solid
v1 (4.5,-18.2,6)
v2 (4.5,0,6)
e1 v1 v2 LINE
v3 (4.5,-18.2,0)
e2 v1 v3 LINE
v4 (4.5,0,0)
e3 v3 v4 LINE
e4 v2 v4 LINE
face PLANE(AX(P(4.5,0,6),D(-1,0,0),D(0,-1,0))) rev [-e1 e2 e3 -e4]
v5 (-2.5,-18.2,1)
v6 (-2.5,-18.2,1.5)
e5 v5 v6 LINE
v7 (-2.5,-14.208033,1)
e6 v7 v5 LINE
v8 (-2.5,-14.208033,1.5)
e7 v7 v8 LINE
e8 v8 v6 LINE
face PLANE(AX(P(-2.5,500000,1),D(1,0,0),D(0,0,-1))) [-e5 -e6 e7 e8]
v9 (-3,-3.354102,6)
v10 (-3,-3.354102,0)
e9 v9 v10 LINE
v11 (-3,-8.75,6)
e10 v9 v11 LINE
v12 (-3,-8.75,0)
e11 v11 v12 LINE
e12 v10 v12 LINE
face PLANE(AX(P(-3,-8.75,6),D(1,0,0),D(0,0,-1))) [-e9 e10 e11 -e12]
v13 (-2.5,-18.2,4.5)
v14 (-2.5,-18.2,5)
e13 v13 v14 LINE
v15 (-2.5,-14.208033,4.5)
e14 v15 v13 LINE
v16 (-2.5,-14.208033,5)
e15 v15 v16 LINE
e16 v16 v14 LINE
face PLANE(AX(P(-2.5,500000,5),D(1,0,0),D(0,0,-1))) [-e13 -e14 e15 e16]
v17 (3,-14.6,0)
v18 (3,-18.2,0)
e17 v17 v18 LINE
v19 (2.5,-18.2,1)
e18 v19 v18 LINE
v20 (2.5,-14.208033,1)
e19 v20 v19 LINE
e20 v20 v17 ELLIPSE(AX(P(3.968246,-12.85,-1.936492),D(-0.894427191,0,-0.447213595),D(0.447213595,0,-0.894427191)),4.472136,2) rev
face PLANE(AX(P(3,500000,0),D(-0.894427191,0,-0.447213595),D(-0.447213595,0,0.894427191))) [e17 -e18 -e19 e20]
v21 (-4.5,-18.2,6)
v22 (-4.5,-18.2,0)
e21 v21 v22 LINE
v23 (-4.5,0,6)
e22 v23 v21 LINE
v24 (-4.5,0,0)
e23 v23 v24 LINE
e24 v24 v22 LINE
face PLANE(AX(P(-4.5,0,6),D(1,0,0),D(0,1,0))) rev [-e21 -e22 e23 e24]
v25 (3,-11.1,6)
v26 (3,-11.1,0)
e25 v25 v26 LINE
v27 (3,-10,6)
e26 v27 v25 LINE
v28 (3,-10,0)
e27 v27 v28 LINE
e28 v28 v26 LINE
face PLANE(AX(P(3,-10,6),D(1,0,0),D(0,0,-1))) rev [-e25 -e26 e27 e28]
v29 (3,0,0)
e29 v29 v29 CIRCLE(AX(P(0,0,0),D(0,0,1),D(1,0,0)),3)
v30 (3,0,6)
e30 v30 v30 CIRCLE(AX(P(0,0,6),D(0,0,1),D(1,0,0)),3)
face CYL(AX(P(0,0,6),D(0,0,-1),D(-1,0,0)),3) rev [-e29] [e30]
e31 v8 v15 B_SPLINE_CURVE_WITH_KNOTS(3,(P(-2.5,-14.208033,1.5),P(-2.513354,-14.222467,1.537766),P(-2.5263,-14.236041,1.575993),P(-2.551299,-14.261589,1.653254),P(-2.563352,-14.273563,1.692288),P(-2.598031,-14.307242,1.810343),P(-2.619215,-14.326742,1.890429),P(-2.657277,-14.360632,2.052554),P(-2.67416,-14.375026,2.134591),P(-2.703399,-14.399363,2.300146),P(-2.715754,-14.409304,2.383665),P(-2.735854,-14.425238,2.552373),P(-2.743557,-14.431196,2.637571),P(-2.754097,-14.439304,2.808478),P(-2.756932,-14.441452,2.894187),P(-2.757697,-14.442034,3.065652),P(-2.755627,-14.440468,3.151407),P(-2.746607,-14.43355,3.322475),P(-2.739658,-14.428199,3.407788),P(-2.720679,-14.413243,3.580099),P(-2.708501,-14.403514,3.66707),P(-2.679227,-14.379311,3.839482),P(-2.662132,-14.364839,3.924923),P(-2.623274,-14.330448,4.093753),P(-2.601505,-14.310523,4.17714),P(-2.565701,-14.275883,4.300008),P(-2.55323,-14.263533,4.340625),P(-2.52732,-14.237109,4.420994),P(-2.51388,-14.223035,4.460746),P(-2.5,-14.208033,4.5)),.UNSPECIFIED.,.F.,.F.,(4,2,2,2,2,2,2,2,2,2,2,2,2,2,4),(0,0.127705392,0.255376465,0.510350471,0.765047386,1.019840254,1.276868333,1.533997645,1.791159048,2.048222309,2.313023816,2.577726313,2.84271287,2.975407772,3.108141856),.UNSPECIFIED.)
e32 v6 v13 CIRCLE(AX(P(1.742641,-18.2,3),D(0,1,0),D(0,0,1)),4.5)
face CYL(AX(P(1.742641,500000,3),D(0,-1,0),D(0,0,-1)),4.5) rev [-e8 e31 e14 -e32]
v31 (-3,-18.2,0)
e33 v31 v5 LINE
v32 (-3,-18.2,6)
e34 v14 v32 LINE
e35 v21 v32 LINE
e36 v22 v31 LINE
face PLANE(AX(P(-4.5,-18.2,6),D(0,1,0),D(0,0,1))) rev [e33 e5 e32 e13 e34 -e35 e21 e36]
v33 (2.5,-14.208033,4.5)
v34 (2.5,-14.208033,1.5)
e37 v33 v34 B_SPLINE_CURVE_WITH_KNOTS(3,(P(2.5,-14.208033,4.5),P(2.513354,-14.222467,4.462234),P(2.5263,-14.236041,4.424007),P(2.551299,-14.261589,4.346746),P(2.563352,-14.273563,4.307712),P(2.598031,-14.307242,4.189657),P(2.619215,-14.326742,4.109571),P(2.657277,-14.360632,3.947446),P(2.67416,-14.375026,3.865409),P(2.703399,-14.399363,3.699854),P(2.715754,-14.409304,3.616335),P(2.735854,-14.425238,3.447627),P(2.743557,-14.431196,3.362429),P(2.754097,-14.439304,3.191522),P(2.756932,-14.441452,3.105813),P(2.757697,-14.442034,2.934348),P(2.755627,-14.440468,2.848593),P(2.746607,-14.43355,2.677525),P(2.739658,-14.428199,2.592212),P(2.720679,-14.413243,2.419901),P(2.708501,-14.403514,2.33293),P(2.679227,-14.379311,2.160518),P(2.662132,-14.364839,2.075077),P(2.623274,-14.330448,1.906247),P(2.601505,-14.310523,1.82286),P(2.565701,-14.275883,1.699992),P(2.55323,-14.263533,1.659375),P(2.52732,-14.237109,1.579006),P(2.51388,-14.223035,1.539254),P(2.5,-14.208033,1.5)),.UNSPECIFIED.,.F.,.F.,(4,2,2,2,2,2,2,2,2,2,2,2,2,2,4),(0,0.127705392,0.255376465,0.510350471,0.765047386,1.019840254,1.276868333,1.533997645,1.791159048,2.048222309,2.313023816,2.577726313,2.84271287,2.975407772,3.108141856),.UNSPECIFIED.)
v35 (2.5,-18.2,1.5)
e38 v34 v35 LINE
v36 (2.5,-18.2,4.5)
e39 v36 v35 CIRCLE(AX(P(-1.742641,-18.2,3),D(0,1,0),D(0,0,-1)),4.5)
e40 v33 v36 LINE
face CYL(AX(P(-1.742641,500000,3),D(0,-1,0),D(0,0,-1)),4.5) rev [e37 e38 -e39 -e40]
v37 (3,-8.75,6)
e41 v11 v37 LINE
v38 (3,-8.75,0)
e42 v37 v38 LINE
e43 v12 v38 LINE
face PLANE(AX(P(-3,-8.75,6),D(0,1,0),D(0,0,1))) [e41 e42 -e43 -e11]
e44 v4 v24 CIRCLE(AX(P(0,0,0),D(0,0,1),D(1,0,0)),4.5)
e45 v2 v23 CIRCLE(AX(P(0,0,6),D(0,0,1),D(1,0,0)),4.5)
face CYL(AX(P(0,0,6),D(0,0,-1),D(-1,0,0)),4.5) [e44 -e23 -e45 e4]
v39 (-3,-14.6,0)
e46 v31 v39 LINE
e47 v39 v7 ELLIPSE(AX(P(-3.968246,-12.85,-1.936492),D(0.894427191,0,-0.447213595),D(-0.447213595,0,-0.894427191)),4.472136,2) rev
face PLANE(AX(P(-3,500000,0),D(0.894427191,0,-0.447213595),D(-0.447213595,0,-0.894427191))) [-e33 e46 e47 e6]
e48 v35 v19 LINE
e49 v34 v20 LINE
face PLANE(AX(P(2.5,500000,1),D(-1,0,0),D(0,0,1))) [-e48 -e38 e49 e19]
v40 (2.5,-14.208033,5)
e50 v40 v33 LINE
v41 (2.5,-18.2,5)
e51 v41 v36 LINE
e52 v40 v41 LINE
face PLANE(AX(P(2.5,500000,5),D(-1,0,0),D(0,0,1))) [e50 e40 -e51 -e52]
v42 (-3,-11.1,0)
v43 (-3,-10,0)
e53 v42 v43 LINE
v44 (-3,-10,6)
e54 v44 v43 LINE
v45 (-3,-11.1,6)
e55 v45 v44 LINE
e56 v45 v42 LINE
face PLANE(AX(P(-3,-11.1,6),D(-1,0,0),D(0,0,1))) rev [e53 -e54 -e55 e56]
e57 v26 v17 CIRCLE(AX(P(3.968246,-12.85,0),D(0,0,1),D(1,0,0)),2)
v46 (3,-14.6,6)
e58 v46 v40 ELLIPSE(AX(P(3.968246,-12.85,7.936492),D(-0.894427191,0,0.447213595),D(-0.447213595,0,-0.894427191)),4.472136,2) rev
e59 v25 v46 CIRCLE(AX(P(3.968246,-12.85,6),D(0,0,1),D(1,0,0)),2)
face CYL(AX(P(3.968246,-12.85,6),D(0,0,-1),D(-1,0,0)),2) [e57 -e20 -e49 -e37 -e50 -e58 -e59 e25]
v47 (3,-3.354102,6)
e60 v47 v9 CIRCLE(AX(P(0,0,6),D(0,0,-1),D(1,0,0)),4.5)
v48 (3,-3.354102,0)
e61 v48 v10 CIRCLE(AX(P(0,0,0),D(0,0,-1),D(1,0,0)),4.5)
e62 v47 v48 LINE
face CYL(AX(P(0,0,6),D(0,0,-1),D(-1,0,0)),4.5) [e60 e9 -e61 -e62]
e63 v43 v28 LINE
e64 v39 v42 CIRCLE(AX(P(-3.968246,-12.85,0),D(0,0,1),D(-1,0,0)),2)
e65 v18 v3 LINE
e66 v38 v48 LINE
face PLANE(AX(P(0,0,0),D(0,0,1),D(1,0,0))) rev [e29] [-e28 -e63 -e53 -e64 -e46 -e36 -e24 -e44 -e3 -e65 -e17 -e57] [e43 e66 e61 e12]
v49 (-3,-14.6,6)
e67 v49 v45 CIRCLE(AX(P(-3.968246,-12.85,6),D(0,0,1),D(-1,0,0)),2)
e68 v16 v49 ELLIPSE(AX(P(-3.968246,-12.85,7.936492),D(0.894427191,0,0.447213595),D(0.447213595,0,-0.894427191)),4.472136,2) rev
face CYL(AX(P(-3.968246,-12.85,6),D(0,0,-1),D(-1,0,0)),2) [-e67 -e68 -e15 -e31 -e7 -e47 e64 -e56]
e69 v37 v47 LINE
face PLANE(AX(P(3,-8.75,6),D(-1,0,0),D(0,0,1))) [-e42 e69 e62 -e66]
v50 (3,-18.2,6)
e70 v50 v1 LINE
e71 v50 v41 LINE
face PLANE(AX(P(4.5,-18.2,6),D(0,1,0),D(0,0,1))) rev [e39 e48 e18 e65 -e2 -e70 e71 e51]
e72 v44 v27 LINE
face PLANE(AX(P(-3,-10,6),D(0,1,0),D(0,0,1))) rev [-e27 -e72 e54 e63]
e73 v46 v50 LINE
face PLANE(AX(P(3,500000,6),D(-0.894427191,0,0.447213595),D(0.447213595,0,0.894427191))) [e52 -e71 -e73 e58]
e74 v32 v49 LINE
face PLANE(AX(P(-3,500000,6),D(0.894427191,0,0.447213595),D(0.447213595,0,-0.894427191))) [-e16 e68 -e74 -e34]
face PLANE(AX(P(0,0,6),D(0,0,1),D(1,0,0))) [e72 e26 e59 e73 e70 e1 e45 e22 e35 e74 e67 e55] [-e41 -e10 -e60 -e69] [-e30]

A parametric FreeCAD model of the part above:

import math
import FreeCAD as App
import Part
import Sketcher

doc = App.newDocument("Part")
params = doc.addObject("Spreadsheet::Sheet", "Params")
for row, (alias, value) in enumerate([
    ("sketch1_radius", "2 mm"),
    ("sketch1_radius2", "4.5 mm"),
    ("sketch1_width", "6 mm"),
    ("sketch1_height", "18.2 mm"),
    ("sketch1_height2", "3.6 mm"),
    ("pad1_length", "6 mm"),
    ("sketch2_diameter", "6 mm"),
    ("sketch2_radius", "4.5 mm"),
    ("sketch2_width", "6 mm"),
    ("sketch3_radius", "4.5 mm"),
    ("sketch3_height", "6 mm"),
    ("sketch3_height2", "0.5 mm"),
    ("sketch4_radius", "4.5 mm"),
    ("sketch4_height", "6 mm"),
    ("sketch4_height2", "0.5 mm"),
], start=1):
    params.set(f"A{row}", alias)
    params.set(f"B{row}", "=" + value)
    params.setAlias(f"B{row}", alias)

body = doc.addObject("PartDesign::Body", "Body")

sketch1 = body.newObject("Sketcher::SketchObject", "Sketch")
sketch1.AttachmentSupport = (doc.getObject("XY_Plane"), [""])
sketch1.MapMode = "FlatFace"
sketch1.addGeometry(Part.LineSegment(App.Vector(-4.5, 0, 0), App.Vector(-4.5, -18.2, 0)), False)
sketch1.addGeometry(Part.LineSegment(App.Vector(-4.5, -18.2, 0), App.Vector(-3, -18.2, 0)), False)
sketch1.addGeometry(Part.LineSegment(App.Vector(-3, -18.2, 0), App.Vector(-3, -14.6, 0)), False)
sketch1.addGeometry(Part.ArcOfCircle(Part.Circle(App.Vector(-4, -12.8, 0), App.Vector(0, 0, 1), 2), math.radians(-61), math.radians(61)), False)
sketch1.addGeometry(Part.LineSegment(App.Vector(-3, -11.1, 0), App.Vector(-3, -10, 0)), False)
sketch1.addGeometry(Part.LineSegment(App.Vector(-3, -10, 0), App.Vector(3, -10, 0)), False)
sketch1.addGeometry(Part.LineSegment(App.Vector(3, -10, 0), App.Vector(3, -11.1, 0)), False)
sketch1.addGeometry(Part.ArcOfCircle(Part.Circle(App.Vector(4, -12.8, 0), App.Vector(0, 0, 1), 2), math.radians(119), math.radians(241)), False)
sketch1.addGeometry(Part.LineSegment(App.Vector(3, -14.6, 0), App.Vector(3, -18.2, 0)), False)
sketch1.addGeometry(Part.LineSegment(App.Vector(3, -18.2, 0), App.Vector(4.5, -18.2, 0)), False)
sketch1.addGeometry(Part.LineSegment(App.Vector(4.5, -18.2, 0), App.Vector(4.5, 0, 0)), False)
sketch1.addGeometry(Part.ArcOfCircle(Part.Circle(App.Vector(0, 0, 0), App.Vector(0, 0, 1), 4.5), math.radians(0), math.radians(180)), False)
sketch1.addConstraint(Sketcher.Constraint("Coincident", 0, 2, 1, 1))
sketch1.addConstraint(Sketcher.Constraint("Coincident", 1, 2, 2, 1))
sketch1.addConstraint(Sketcher.Constraint("Coincident", 2, 2, 3, 1))
sketch1.addConstraint(Sketcher.Constraint("Coincident", 3, 2, 4, 1))
sketch1.addConstraint(Sketcher.Constraint("Coincident", 4, 2, 5, 1))
sketch1.addConstraint(Sketcher.Constraint("Coincident", 5, 2, 6, 1))
sketch1.addConstraint(Sketcher.Constraint("Coincident", 6, 2, 7, 1))
sketch1.addConstraint(Sketcher.Constraint("Coincident", 7, 2, 8, 1))
sketch1.addConstraint(Sketcher.Constraint("Coincident", 8, 2, 9, 1))
sketch1.addConstraint(Sketcher.Constraint("Coincident", 9, 2, 10, 1))
sketch1.addConstraint(Sketcher.Constraint("Tangent", 10, 2, 11, 1))
sketch1.addConstraint(Sketcher.Constraint("Tangent", 11, 2, 0, 1))
sketch1.addConstraint(Sketcher.Constraint("Vertical", 0))
sketch1.addConstraint(Sketcher.Constraint("Horizontal", 1))
sketch1.addConstraint(Sketcher.Constraint("Vertical", 2))
sketch1.addConstraint(Sketcher.Constraint("Vertical", 4))
sketch1.addConstraint(Sketcher.Constraint("Horizontal", 5))
sketch1.addConstraint(Sketcher.Constraint("Vertical", 6))
sketch1.addConstraint(Sketcher.Constraint("Vertical", 8))
sketch1.addConstraint(Sketcher.Constraint("Horizontal", 9))
sketch1.addConstraint(Sketcher.Constraint("Vertical", 10))
sketch1.addConstraint(Sketcher.Constraint("Coincident", 11, 3, -1, 1))
sketch1.addConstraint(Sketcher.Constraint("Equal", 3, 7))
sketch1.addConstraint(Sketcher.Constraint("Symmetric", 3, 3, 7, 3, -2))
sketch1.addConstraint(Sketcher.Constraint("Symmetric", 1, 2, 8, 2, -2))
sketch1.addConstraint(Sketcher.Constraint("Horizontal", 3, 2, 6, 2))
sketch1.addConstraint(Sketcher.Constraint("Vertical", 2, 2, 3, 2))
sketch1.addConstraint(Sketcher.Constraint("Radius", 3, 2.0))
sketch1.addConstraint(Sketcher.Constraint("Radius", 11, 4.5))
sketch1.addConstraint(Sketcher.Constraint("DistanceX", 5, 1, 5, 2, 6.0))
sketch1.addConstraint(Sketcher.Constraint("DistanceY", 0, 2, 0, 1, 18.2))
sketch1.addConstraint(Sketcher.Constraint("DistanceY", 2, 1, 2, 2, 3.6))
sketch1.addConstraint(Sketcher.Constraint("DistanceY", 4, 1, 4, 2, 1.1))
sketch1.addConstraint(Sketcher.Constraint("DistanceY", 4, 2, -1, 1, 10.0))
sketch1.setExpression("Constraints[27]", "Params.sketch1_radius")
sketch1.setExpression("Constraints[28]", "Params.sketch1_radius2")
sketch1.setExpression("Constraints[29]", "Params.sketch1_width")
sketch1.setExpression("Constraints[30]", "Params.sketch1_height")
sketch1.setExpression("Constraints[31]", "Params.sketch1_height2")
pad1 = body.newObject("PartDesign::Pad", "Pad")
pad1.Profile = sketch1
pad1.setExpression("Length", "Params.pad1_length")

sketch2 = body.newObject("Sketcher::SketchObject", "Sketch001")
sketch2.AttachmentSupport = (doc.getObject("XY_Plane"), [""])
sketch2.MapMode = "FlatFace"
sketch2.addGeometry(Part.Circle(App.Vector(0, 0, 0), App.Vector(0, 0, 1), 3), False)
sketch2.addGeometry(Part.LineSegment(App.Vector(-3, -3.4, 0), App.Vector(-3, -8.8, 0)), False)
sketch2.addGeometry(Part.LineSegment(App.Vector(-3, -8.8, 0), App.Vector(3, -8.8, 0)), False)
sketch2.addGeometry(Part.LineSegment(App.Vector(3, -8.8, 0), App.Vector(3, -3.4, 0)), False)
sketch2.addGeometry(Part.ArcOfCircle(Part.Circle(App.Vector(0, 0, 0), App.Vector(0, 0, 1), 4.5), math.radians(-132), math.radians(-48)), False)
sketch2.addConstraint(Sketcher.Constraint("Coincident", 1, 2, 2, 1))
sketch2.addConstraint(Sketcher.Constraint("Coincident", 2, 2, 3, 1))
sketch2.addConstraint(Sketcher.Constraint("Coincident", 3, 2, 4, 2))
sketch2.addConstraint(Sketcher.Constraint("Coincident", 4, 1, 1, 1))
sketch2.addConstraint(Sketcher.Constraint("Vertical", 1))
sketch2.addConstraint(Sketcher.Constraint("Horizontal", 2))
sketch2.addConstraint(Sketcher.Constraint("Vertical", 3))
sketch2.addConstraint(Sketcher.Constraint("Coincident", 0, 3, -1, 1))
sketch2.addConstraint(Sketcher.Constraint("Coincident", 4, 3, -1, 1))
sketch2.addConstraint(Sketcher.Constraint("Horizontal", 3, 2, 4, 1))
sketch2.addConstraint(Sketcher.Constraint("Diameter", 0, 6.0))
sketch2.addConstraint(Sketcher.Constraint("Radius", 4, 4.5))
sketch2.addConstraint(Sketcher.Constraint("DistanceX", 2, 1, 2, 2, 6.0))
sketch2.addConstraint(Sketcher.Constraint("DistanceY", 1, 2, -1, 1, 8.75))
sketch2.setExpression("Constraints[10]", "Params.sketch2_diameter")
sketch2.setExpression("Constraints[11]", "Params.sketch2_radius")
sketch2.setExpression("Constraints[12]", "Params.sketch2_width")
pocket1 = body.newObject("PartDesign::Pocket", "Pocket")
pocket1.Profile = sketch2
pocket1.Type = "ThroughAll"
pocket1.Reversed = True

sketch3 = body.newObject("Sketcher::SketchObject", "Sketch002")
sketch3.AttachmentSupport = (doc.getObject("XZ_Plane"), [""])
sketch3.MapMode = "FlatFace"
sketch3.AttachmentOffset = App.Placement(App.Vector(0, 0, 18.2), App.Rotation())
sketch3.addGeometry(Part.LineSegment(App.Vector(-3, 6, 0), App.Vector(-3, 0, 0)), False)
sketch3.addGeometry(Part.LineSegment(App.Vector(-3, 0, 0), App.Vector(-2.5, 1, 0)), False)
sketch3.addGeometry(Part.LineSegment(App.Vector(-2.5, 1, 0), App.Vector(-2.5, 1.5, 0)), False)
sketch3.addGeometry(Part.ArcOfCircle(Part.Circle(App.Vector(1.7, 3, 0), App.Vector(0, 0, 1), 4.5), math.radians(161), math.radians(199)), False)
sketch3.addGeometry(Part.LineSegment(App.Vector(-2.5, 4.5, 0), App.Vector(-2.5, 5, 0)), False)
sketch3.addGeometry(Part.LineSegment(App.Vector(-2.5, 5, 0), App.Vector(-3, 6, 0)), False)
sketch3.addConstraint(Sketcher.Constraint("Coincident", 0, 2, 1, 1))
sketch3.addConstraint(Sketcher.Constraint("Coincident", 1, 2, 2, 1))
sketch3.addConstraint(Sketcher.Constraint("Coincident", 2, 2, 3, 2))
sketch3.addConstraint(Sketcher.Constraint("Coincident", 3, 1, 4, 1))
sketch3.addConstraint(Sketcher.Constraint("Coincident", 4, 2, 5, 1))
sketch3.addConstraint(Sketcher.Constraint("Coincident", 5, 2, 0, 1))
sketch3.addConstraint(Sketcher.Constraint("Vertical", 0))
sketch3.addConstraint(Sketcher.Constraint("Vertical", 2))
sketch3.addConstraint(Sketcher.Constraint("Vertical", 4))
sketch3.addConstraint(Sketcher.Constraint("PointOnObject", 0, 2, -1))
sketch3.addConstraint(Sketcher.Constraint("Vertical", 2, 2, 3, 1))
sketch3.addConstraint(Sketcher.Constraint("Equal", 2, 4))
sketch3.addConstraint(Sketcher.Constraint("Equal", 1, 5))
sketch3.addConstraint(Sketcher.Constraint("Radius", 3, 4.5))
sketch3.addConstraint(Sketcher.Constraint("DistanceY", 0, 2, 0, 1, 6.0))
sketch3.addConstraint(Sketcher.Constraint("DistanceY", 2, 1, 2, 2, 0.5))
sketch3.addConstraint(Sketcher.Constraint("DistanceX", 0, 2, -1, 1, 3.0))
sketch3.addConstraint(Sketcher.Constraint("DistanceY", -1, 1, 1, 2, 1.0))
sketch3.addConstraint(Sketcher.Constraint("DistanceX", 1, 2, -1, 1, 2.5))
sketch3.setExpression("Constraints[13]", "Params.sketch3_radius")
sketch3.setExpression("Constraints[14]", "Params.sketch3_height")
sketch3.setExpression("Constraints[15]", "Params.sketch3_height2")
pad2 = body.newObject("PartDesign::Pad", "Pad001")
pad2.Profile = sketch3
pad2.Type = "UpToFirst"
pad2.Reversed = True

sketch4 = body.newObject("Sketcher::SketchObject", "Sketch003")
sketch4.AttachmentSupport = (doc.getObject("XZ_Plane"), [""])
sketch4.MapMode = "FlatFace"
sketch4.AttachmentOffset = App.Placement(App.Vector(0, 0, 18.2), App.Rotation())
sketch4.addGeometry(Part.LineSegment(App.Vector(2.5, 1, 0), App.Vector(3, 0, 0)), False)
sketch4.addGeometry(Part.LineSegment(App.Vector(3, 0, 0), App.Vector(3, 6, 0)), False)
sketch4.addGeometry(Part.LineSegment(App.Vector(3, 6, 0), App.Vector(2.5, 5, 0)), False)
sketch4.addGeometry(Part.LineSegment(App.Vector(2.5, 5, 0), App.Vector(2.5, 4.5, 0)), False)
sketch4.addGeometry(Part.ArcOfCircle(Part.Circle(App.Vector(-1.7, 3, 0), App.Vector(0, 0, 1), 4.5), math.radians(-19), math.radians(19)), False)
sketch4.addGeometry(Part.LineSegment(App.Vector(2.5, 1.5, 0), App.Vector(2.5, 1, 0)), False)
sketch4.addConstraint(Sketcher.Constraint("Coincident", 0, 2, 1, 1))
sketch4.addConstraint(Sketcher.Constraint("Coincident", 1, 2, 2, 1))
sketch4.addConstraint(Sketcher.Constraint("Coincident", 2, 2, 3, 1))
sketch4.addConstraint(Sketcher.Constraint("Coincident", 3, 2, 4, 2))
sketch4.addConstraint(Sketcher.Constraint("Coincident", 4, 1, 5, 1))
sketch4.addConstraint(Sketcher.Constraint("Coincident", 5, 2, 0, 1))
sketch4.addConstraint(Sketcher.Constraint("Vertical", 1))
sketch4.addConstraint(Sketcher.Constraint("Vertical", 3))
sketch4.addConstraint(Sketcher.Constraint("Vertical", 5))
sketch4.addConstraint(Sketcher.Constraint("PointOnObject", 0, 2, -1))
sketch4.addConstraint(Sketcher.Constraint("Vertical", 3, 2, 4, 1))
sketch4.addConstraint(Sketcher.Constraint("Equal", 3, 5))
sketch4.addConstraint(Sketcher.Constraint("Equal", 0, 2))
sketch4.addConstraint(Sketcher.Constraint("Radius", 4, 4.5))
sketch4.addConstraint(Sketcher.Constraint("DistanceY", 1, 1, 1, 2, 6.0))
sketch4.addConstraint(Sketcher.Constraint("DistanceY", 3, 2, 3, 1, 0.5))
sketch4.addConstraint(Sketcher.Constraint("DistanceX", -1, 1, 0, 2, 3.0))
sketch4.addConstraint(Sketcher.Constraint("DistanceY", -1, 1, 2, 2, 5.0))
sketch4.addConstraint(Sketcher.Constraint("DistanceX", -1, 1, 2, 2, 2.5))
sketch4.setExpression("Constraints[13]", "Params.sketch4_radius")
sketch4.setExpression("Constraints[14]", "Params.sketch4_height")
sketch4.setExpression("Constraints[15]", "Params.sketch4_height2")
pad3 = body.newObject("PartDesign::Pad", "Pad002")
pad3.Profile = sketch4
pad3.Type = "UpToFirst"
pad3.Reversed = True

doc.recompute()
